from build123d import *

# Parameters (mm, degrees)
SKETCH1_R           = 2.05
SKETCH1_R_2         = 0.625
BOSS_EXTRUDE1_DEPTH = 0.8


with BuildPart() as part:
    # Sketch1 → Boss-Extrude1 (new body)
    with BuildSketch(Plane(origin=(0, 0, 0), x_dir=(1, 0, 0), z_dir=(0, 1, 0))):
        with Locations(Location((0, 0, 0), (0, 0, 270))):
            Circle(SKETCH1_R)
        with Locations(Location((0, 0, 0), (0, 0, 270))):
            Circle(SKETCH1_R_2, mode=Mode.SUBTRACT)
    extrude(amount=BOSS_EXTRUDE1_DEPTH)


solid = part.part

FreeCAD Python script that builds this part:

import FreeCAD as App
import Part
import Sketcher
from FreeCAD import Vector

doc = App.newDocument("Part")
params = doc.addObject("Spreadsheet::Sheet", "Params")
for row, (alias, value) in enumerate([
    ("sketch1_diameter", "4.1 mm"),
    ("sketch1_diameter2", "1.25 mm"),
    ("pad1_length", "0.8 mm"),
], start=1):
    params.set(f"A{row}", alias)
    params.set(f"B{row}", "=" + value)
    params.setAlias(f"B{row}", alias)

body = doc.addObject("PartDesign::Body", "Body")

sketch1 = body.newObject("Sketcher::SketchObject", "Sketch")
sketch1.AttachmentSupport = (doc.getObject("XZ_Plane"), [""])
sketch1.MapMode = "FlatFace"
sketch1.addGeometry([
    Part.Circle(Vector(0, 0, 0), Vector(0, 0, 1), 2),
    Part.Circle(Vector(0, 0, 0), Vector(0, 0, 1), 0.6),
], False)
sketch1.addConstraint([
    Sketcher.Constraint("Coincident", 0, 3, -1, 1),
    Sketcher.Constraint("Coincident", 1, 3, -1, 1),
    Sketcher.Constraint("Diameter", 0, 4.1),
    Sketcher.Constraint("Diameter", 1, 1.25),
])
sketch1.setExpression("Constraints[2]", "Params.sketch1_diameter")
sketch1.setExpression("Constraints[3]", "Params.sketch1_diameter2")
pad1 = body.newObject("PartDesign::Pad", "Pad")
pad1.Profile = sketch1
pad1.setExpression("Length", "Params.pad1_length")
pad1.Reversed = True

doc.recompute()
